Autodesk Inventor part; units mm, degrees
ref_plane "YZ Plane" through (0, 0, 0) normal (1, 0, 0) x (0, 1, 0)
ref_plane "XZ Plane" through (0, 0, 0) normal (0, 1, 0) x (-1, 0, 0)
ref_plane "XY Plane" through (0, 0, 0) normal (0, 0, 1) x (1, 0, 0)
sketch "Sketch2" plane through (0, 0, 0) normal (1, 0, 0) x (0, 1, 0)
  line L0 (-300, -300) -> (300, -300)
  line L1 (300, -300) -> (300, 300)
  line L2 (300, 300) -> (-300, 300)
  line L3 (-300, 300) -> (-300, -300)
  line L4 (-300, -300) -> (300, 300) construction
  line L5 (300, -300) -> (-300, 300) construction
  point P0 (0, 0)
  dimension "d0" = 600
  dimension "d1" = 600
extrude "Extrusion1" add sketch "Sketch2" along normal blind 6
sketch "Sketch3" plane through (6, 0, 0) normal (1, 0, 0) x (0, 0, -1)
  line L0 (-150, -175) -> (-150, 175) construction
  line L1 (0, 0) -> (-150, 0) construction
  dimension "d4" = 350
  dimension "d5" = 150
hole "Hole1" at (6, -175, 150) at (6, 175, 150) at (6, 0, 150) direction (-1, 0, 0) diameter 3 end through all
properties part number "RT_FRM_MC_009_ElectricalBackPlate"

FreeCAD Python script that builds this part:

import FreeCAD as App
import Part
import Sketcher
from FreeCAD import Vector


def add_polygon(sketch, points):
    """Adds a closed chain of lines whose ends are joined by coincident constraints."""
    first, n = sketch.GeometryCount, len(points)
    for a, b in zip(points, points[1:] + points[:1]):
        sketch.addGeometry(Part.LineSegment(App.Vector(*a, 0), App.Vector(*b, 0)), False)
    for i in range(n):
        sketch.addConstraint(Sketcher.Constraint("Coincident", first + i, 2, first + (i + 1) % n, 1))

doc = App.newDocument("Part")
body = doc.addObject("PartDesign::Body", "Body")

# Sketch on YZ plane
sketch1 = body.newObject("Sketcher::SketchObject", "Sketch")
sketch1.AttachmentSupport = (doc.getObject("YZ_Plane"), [""])
sketch1.MapMode = "FlatFace"
add_polygon(sketch1, [(-300, 300), (-300, -300), (300, -300), (300, 300)])  # lines 0-3
sketch1.addConstraint(Sketcher.Constraint("Vertical", 0))
sketch1.addConstraint(Sketcher.Constraint("Horizontal", 1))
sketch1.addConstraint(Sketcher.Constraint("Vertical", 2))
sketch1.addConstraint(Sketcher.Constraint("Horizontal", 3))
sketch1.addConstraint(Sketcher.Constraint("Symmetric", 0, 2, 2, 2, -1, 1))
sketch1.addConstraint(Sketcher.Constraint("Equal", 3, 0))
sketch1.addConstraint(Sketcher.Constraint("DistanceX", 1, 1, 1, 2, 600.0))
pad1 = body.newObject("PartDesign::Pad", "Pad")
pad1.Profile = sketch1
pad1.Length = 6

# Sketch on YZ plane
sketch2 = body.newObject("Sketcher::SketchObject", "Sketch001")
sketch2.AttachmentSupport = (doc.getObject("YZ_Plane"), [""])
sketch2.MapMode = "FlatFace"
sketch2.AttachmentOffset = App.Placement(Vector(0, 0, 6), App.Rotation())
sketch2.addGeometry(Part.Circle(Vector(-175, 150, 0), Vector(0, 0, 1), 1.5), False)
sketch2.addGeometry(Part.Circle(Vector(175, 150, 0), Vector(0, 0, 1), 1.5), False)
sketch2.addGeometry(Part.Circle(Vector(0, 150, 0), Vector(0, 0, 1), 1.5), False)
sketch2.addConstraint(Sketcher.Constraint("Equal", 0, 1))
sketch2.addConstraint(Sketcher.Constraint("Equal", 1, 2))
sketch2.addConstraint(Sketcher.Constraint("Symmetric", 0, 3, 1, 3, -2))
sketch2.addConstraint(Sketcher.Constraint("PointOnObject", 2, 3, -2))
sketch2.addConstraint(Sketcher.Constraint("Horizontal", 1, 3, 2, 3))
sketch2.addConstraint(Sketcher.Constraint("Diameter", 0, 3.0))
sketch2.addConstraint(Sketcher.Constraint("DistanceX", 0, 3, -1, 1, 175.0))
sketch2.addConstraint(Sketcher.Constraint("DistanceY", -1, 1, 0, 3, 150.0))
doc.recompute()
hole = body.newObject("PartDesign::Hole", "Hole")
hole.Profile = sketch2
hole.ThreadType = "None"
hole.Diameter = 3
hole.DepthType = "ThroughAll"

doc.recompute()
